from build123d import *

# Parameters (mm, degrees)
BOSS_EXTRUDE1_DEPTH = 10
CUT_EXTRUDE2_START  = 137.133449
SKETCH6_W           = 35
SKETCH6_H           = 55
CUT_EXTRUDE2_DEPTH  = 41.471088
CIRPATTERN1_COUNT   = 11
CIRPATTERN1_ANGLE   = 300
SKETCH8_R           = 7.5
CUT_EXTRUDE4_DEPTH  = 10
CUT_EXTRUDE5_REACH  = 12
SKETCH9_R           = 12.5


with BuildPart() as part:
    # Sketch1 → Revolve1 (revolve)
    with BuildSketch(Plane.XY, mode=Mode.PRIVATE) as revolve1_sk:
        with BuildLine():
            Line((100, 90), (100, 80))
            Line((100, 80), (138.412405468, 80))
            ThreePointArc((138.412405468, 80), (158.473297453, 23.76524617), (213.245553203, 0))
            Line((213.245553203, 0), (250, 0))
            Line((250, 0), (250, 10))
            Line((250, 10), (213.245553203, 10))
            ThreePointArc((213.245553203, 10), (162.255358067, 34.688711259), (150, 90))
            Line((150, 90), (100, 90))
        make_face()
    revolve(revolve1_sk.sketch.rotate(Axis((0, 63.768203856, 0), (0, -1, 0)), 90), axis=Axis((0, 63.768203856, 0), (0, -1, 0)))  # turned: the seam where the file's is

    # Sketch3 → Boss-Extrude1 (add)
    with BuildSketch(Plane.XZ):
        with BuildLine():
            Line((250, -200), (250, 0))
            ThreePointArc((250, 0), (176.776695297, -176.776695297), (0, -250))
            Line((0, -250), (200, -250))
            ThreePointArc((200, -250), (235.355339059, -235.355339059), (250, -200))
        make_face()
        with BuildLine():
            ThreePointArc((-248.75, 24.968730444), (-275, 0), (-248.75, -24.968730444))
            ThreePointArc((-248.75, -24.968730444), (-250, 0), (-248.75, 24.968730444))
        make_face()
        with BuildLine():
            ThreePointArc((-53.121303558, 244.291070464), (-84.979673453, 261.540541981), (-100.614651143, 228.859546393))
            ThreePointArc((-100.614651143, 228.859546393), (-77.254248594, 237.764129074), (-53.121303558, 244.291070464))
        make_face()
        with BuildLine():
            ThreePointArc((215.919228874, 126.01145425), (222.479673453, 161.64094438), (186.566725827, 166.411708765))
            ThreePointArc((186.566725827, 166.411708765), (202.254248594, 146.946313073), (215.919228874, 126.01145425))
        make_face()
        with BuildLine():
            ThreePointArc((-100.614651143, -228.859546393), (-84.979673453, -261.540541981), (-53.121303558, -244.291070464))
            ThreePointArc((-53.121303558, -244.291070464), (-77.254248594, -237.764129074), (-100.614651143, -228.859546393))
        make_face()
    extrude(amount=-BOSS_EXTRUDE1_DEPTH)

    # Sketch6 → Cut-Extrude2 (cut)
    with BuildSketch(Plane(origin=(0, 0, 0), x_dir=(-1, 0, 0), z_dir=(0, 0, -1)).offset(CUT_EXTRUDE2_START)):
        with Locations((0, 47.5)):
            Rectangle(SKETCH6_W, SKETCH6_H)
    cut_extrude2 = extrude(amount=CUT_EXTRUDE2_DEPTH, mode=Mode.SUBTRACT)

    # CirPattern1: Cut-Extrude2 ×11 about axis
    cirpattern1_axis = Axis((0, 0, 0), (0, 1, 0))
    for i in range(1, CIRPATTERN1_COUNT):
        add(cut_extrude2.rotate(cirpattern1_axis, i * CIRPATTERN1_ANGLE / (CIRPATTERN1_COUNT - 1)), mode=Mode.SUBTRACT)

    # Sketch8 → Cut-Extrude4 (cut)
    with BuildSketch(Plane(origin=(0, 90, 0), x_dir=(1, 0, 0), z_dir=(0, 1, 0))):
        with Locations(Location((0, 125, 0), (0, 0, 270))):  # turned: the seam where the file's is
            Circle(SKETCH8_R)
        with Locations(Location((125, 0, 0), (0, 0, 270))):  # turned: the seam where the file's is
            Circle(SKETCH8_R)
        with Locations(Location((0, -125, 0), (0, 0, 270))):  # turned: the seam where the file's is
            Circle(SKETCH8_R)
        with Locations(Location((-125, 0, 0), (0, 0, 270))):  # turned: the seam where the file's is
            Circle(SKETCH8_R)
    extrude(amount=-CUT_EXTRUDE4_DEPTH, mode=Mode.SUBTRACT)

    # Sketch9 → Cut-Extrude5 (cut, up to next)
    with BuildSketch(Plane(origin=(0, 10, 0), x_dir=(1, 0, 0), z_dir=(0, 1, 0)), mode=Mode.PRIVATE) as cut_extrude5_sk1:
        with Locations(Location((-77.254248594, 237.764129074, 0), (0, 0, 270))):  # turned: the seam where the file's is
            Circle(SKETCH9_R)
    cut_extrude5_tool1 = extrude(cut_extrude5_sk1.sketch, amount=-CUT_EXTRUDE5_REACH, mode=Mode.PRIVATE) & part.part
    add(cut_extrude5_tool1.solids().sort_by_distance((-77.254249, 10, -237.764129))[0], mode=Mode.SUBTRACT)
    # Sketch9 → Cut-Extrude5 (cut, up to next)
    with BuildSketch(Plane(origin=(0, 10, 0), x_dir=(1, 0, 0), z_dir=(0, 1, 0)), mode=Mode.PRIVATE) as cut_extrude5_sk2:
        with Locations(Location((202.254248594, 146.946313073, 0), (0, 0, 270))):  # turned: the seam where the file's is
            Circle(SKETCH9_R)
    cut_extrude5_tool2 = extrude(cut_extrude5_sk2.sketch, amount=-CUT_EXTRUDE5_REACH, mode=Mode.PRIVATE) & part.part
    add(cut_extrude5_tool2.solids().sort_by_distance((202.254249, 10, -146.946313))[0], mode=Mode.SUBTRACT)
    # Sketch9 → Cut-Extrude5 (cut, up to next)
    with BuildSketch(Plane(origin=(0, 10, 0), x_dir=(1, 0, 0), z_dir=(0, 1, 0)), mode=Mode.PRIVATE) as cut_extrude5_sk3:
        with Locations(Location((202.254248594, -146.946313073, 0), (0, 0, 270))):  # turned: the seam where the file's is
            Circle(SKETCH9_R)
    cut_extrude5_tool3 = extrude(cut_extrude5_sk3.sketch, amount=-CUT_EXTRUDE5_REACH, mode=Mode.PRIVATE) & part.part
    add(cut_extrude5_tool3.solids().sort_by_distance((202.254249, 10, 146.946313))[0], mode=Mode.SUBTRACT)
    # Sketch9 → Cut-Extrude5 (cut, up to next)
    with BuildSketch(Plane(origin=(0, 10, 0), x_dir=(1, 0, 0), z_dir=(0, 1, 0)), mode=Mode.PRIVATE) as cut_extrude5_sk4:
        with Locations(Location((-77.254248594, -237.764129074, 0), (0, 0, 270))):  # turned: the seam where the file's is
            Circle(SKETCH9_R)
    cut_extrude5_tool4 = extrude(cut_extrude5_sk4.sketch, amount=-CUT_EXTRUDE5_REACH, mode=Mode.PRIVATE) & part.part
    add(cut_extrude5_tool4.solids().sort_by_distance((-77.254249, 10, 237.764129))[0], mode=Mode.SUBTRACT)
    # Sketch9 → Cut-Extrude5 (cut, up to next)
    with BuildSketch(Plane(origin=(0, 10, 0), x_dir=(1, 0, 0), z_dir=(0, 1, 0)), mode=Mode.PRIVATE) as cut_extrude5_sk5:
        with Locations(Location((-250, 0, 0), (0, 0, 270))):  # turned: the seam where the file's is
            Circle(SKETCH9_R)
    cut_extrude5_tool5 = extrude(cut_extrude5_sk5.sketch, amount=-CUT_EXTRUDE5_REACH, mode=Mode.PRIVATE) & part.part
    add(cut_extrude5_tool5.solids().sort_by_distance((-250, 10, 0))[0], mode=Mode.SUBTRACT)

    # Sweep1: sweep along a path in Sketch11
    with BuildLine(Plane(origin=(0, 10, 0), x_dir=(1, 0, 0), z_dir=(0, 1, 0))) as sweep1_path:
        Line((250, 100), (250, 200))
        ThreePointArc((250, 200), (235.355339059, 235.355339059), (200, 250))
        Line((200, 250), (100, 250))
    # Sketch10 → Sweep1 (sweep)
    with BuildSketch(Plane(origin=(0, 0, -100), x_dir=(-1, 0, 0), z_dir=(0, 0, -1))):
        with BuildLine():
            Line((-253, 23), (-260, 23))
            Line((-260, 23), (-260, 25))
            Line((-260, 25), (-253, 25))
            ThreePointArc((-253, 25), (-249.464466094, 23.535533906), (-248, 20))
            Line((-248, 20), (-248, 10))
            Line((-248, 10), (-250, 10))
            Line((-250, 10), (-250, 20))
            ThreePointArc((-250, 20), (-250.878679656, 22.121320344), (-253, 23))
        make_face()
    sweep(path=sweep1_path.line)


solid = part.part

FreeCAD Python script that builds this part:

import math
import FreeCAD as App
import Part
import Sketcher
from FreeCAD import Vector

doc = App.newDocument("Part")
body = doc.addObject("PartDesign::Body", "Body")

# Sketch on XY plane
sketch1 = body.newObject("Sketcher::SketchObject", "Sketch")
sketch1.AttachmentSupport = (doc.getObject("XY_Plane"), [""])
sketch1.MapMode = "FlatFace"
sketch1.addGeometry([
    Part.LineSegment(Vector(100, 90, 0), Vector(100, 80, 0)),  # 0
    Part.LineSegment(Vector(100, 80, 0), Vector(138, 80, 0)),  # 1
    Part.ArcOfCircle(Part.Circle(Vector(213, 75, 0), Vector(0, 0, 1), 75), math.radians(176), math.radians(270)),  # 2
    Part.LineSegment(Vector(213, 0, 0), Vector(250, 0, 0)),  # 3
    Part.LineSegment(Vector(250, 0, 0), Vector(250, 10, 0)),  # 4
    Part.LineSegment(Vector(250, 10, 0), Vector(213, 10, 0)),  # 5
    Part.ArcOfCircle(Part.Circle(Vector(213, 75, 0), Vector(0, 0, 1), 65), math.radians(167), math.radians(270)),  # 6
    Part.LineSegment(Vector(150, 90, 0), Vector(100, 90, 0)),  # 7
], False)
sketch1.addConstraint([
    Sketcher.Constraint("Coincident", 0, 2, 1, 1),
    Sketcher.Constraint("Coincident", 1, 2, 2, 1),
    Sketcher.Constraint("Tangent", 2, 2, 3, 1),
    Sketcher.Constraint("Coincident", 3, 2, 4, 1),
    Sketcher.Constraint("Coincident", 4, 2, 5, 1),
    Sketcher.Constraint("Tangent", 5, 2, 6, 2),
    Sketcher.Constraint("Coincident", 6, 1, 7, 1),
    Sketcher.Constraint("Coincident", 7, 2, 0, 1),
    Sketcher.Constraint("Vertical", 0),
    Sketcher.Constraint("Horizontal", 1),
    Sketcher.Constraint("Horizontal", 3),
    Sketcher.Constraint("Vertical", 4),
    Sketcher.Constraint("Horizontal", 5),
    Sketcher.Constraint("Horizontal", 7),
    Sketcher.Constraint("Coincident", 6, 3, 2, 3),
    Sketcher.Constraint("PointOnObject", 2, 2, -1),
    Sketcher.Constraint("Equal", 0, 4),
    Sketcher.Constraint("Radius", 2, 75.0),
    Sketcher.Constraint("Radius", 6, 65.0),
    Sketcher.Constraint("DistanceX", 7, 2, 7, 1, 50.0),
    Sketcher.Constraint("DistanceX", -1, 1, 0, 2, 100.0),
    Sketcher.Constraint("DistanceY", -1, 1, 0, 2, 80.0),
    Sketcher.Constraint("DistanceX", -1, 1, 3, 2, 250.0),
])
revolution = body.newObject("PartDesign::Revolution", "Revolution")
revolution.Profile = sketch1
revolution.ReferenceAxis = (sketch1, ["V_Axis"])
revolution.Angle = 360

# Sketch on XZ plane
sketch2 = body.newObject("Sketcher::SketchObject", "Sketch001")
sketch2.AttachmentSupport = (doc.getObject("XZ_Plane"), [""])
sketch2.MapMode = "FlatFace"
sketch2.addGeometry([
    Part.LineSegment(Vector(250, -200, 0), Vector(250, 0, 0)),  # 0
    Part.ArcOfCircle(Part.Circle(Vector(0, 0, 0), Vector(0, 0, 1), 250), math.radians(-90), math.radians(0)),  # 1
    Part.LineSegment(Vector(0, -250, 0), Vector(200, -250, 0)),  # 2
    Part.ArcOfCircle(Part.Circle(Vector(200, -200, 0), Vector(0, 0, 1), 50), math.radians(-90), math.radians(0)),  # 3
    Part.ArcOfCircle(Part.Circle(Vector(-250, 0, 0), Vector(0, 0, 1), 25), math.radians(87), math.radians(273)),  # 4
    Part.ArcOfCircle(Part.Circle(Vector(0, 0, 0), Vector(0, 0, 1), 250), math.radians(174.27), math.radians(185.73)),  # 5
    Part.ArcOfCircle(Part.Circle(Vector(-77, 238, 0), Vector(0, 0, 1), 25), math.radians(15), math.radians(201)),  # 6
    Part.ArcOfCircle(Part.Circle(Vector(0, 0, 0), Vector(0, 0, 1), 250), math.radians(102.27), math.radians(113.73)),  # 7
    Part.ArcOfCircle(Part.Circle(Vector(202, 147, 0), Vector(0, 0, 1), 25), math.radians(-57), math.radians(129)),  # 8
    Part.ArcOfCircle(Part.Circle(Vector(0, 0, 0), Vector(0, 0, 1), 250), math.radians(30.27), math.radians(41.73)),  # 9
    Part.ArcOfCircle(Part.Circle(Vector(-77, -238, 0), Vector(0, 0, 1), 25), math.radians(159), math.radians(345)),  # 10
    Part.ArcOfCircle(Part.Circle(Vector(0, 0, 0), Vector(0, 0, 1), 250), math.radians(-113.73), math.radians(-102.27)),  # 11
], False)
sketch2.addConstraint([
    Sketcher.Constraint("Tangent", 0, 2, 1, 2),
    Sketcher.Constraint("Tangent", 1, 1, 2, 1),
    Sketcher.Constraint("Tangent", 2, 2, 3, 1),
    Sketcher.Constraint("Tangent", 3, 2, 0, 1),
    Sketcher.Constraint("Coincident", 4, 1, 5, 1),
    Sketcher.Constraint("Coincident", 5, 2, 4, 2),
    Sketcher.Constraint("Coincident", 6, 1, 7, 1),
    Sketcher.Constraint("Coincident", 7, 2, 6, 2),
    Sketcher.Constraint("Coincident", 8, 1, 9, 1),
    Sketcher.Constraint("Coincident", 9, 2, 8, 2),
    Sketcher.Constraint("Coincident", 10, 1, 11, 1),
    Sketcher.Constraint("Coincident", 11, 2, 10, 2),
    Sketcher.Constraint("Vertical", 0),
    Sketcher.Constraint("Horizontal", 2),
    Sketcher.Constraint("Coincident", 1, 3, -1, 1),
    Sketcher.Constraint("Coincident", 5, 3, -1, 1),
    Sketcher.Constraint("Coincident", 7, 3, -1, 1),
    Sketcher.Constraint("Coincident", 9, 3, -1, 1),
    Sketcher.Constraint("Coincident", 11, 3, -1, 1),
    Sketcher.Constraint("Equal", 1, 5),
    Sketcher.Constraint("Equal", 4, 6),
    Sketcher.Constraint("Equal", 5, 7),
    Sketcher.Constraint("Equal", 6, 8),
    Sketcher.Constraint("Equal", 7, 9),
    Sketcher.Constraint("Equal", 8, 10),
    Sketcher.Constraint("Equal", 9, 11),
    Sketcher.Constraint("Symmetric", 6, 3, 10, 3, -1),
    Sketcher.Constraint("PointOnObject", 4, 3, -1),
    Sketcher.Constraint("Radius", 1, 250.0),
    Sketcher.Constraint("Radius", 3, 50.0),
    Sketcher.Constraint("Radius", 4, 25.0),
    Sketcher.Constraint("DistanceX", 4, 3, -1, 1, 250.0),
    Sketcher.Constraint("DistanceX", 6, 3, -1, 1, 77.254249),
    Sketcher.Constraint("DistanceY", -1, 1, 6, 3, 237.764129),
    Sketcher.Constraint("DistanceX", -1, 1, 8, 3, 202.254249),
    Sketcher.Constraint("DistanceX", -1, 1, 8, 1, 215.919229),
])
pad1 = body.newObject("PartDesign::Pad", "Pad")
pad1.Profile = sketch2
pad1.Length = 10
pad1.Reversed = True

# Sketch on XY plane
sketch3 = body.newObject("Sketcher::SketchObject", "Sketch002")
sketch3.AttachmentSupport = (doc.getObject("XY_Plane"), [""])
sketch3.MapMode = "FlatFace"
sketch3.AttachmentOffset = App.Placement(Vector(0, 0, -137.133449), App.Rotation())
sketch3.addGeometry([
    Part.LineSegment(Vector(18, 75, 0), Vector(18, 20, 0)),
    Part.LineSegment(Vector(18, 20, 0), Vector(-18, 20, 0)),
    Part.LineSegment(Vector(-18, 20, 0), Vector(-18, 75, 0)),
    Part.LineSegment(Vector(-18, 75, 0), Vector(18, 75, 0)),
], False)
sketch3.addConstraint([
    Sketcher.Constraint("Coincident", 0, 2, 1, 1),
    Sketcher.Constraint("Coincident", 1, 2, 2, 1),
    Sketcher.Constraint("Coincident", 2, 2, 3, 1),
    Sketcher.Constraint("Coincident", 3, 2, 0, 1),
    Sketcher.Constraint("Vertical", 0),
    Sketcher.Constraint("Horizontal", 1),
    Sketcher.Constraint("Vertical", 2),
    Sketcher.Constraint("Horizontal", 3),
    Sketcher.Constraint("DistanceX", 1, 2, 1, 1, 35.0),
    Sketcher.Constraint("DistanceY", 0, 2, 0, 1, 55.0),
    Sketcher.Constraint("DistanceY", -1, 1, 0, 2, 20.0),
    Sketcher.Constraint("DistanceX", -1, 1, 0, 2, 17.5),
])
pocket1 = body.newObject("PartDesign::Pocket", "Pocket")
pocket1.Profile = sketch3
pocket1.Length = 41.471088
doc.recompute()

polarpattern = body.newObject("PartDesign::PolarPattern", "PolarPattern")
polarpattern.Originals = [pocket1]
polarpattern.Axis = (doc.getObject("Y_Axis"), [""])
polarpattern.Angle = 300
polarpattern.Occurrences = 11
body.Tip = polarpattern

# Sketch on XZ plane
sketch4 = body.newObject("Sketcher::SketchObject", "Sketch003")
sketch4.AttachmentSupport = (doc.getObject("XZ_Plane"), [""])
sketch4.MapMode = "FlatFace"
sketch4.AttachmentOffset = App.Placement(Vector(0, 0, -90), App.Rotation())
sketch4.addGeometry([
    Part.Circle(Vector(0, -125, 0), Vector(0, 0, 1), 8),
    Part.Circle(Vector(125, 0, 0), Vector(0, 0, 1), 8),
    Part.Circle(Vector(0, 125, 0), Vector(0, 0, 1), 8),
    Part.Circle(Vector(-125, 0, 0), Vector(0, 0, 1), 8),
], False)
sketch4.addConstraint([
    Sketcher.Constraint("Equal", 0, 1),
    Sketcher.Constraint("Equal", 1, 2),
    Sketcher.Constraint("Equal", 2, 3),
    Sketcher.Constraint("Symmetric", 0, 3, 2, 3, -1, 1),
    Sketcher.Constraint("Symmetric", 1, 3, 3, 3, -1, 1),
    Sketcher.Constraint("PointOnObject", 0, 3, -2),
    Sketcher.Constraint("PointOnObject", 1, 3, -1),
    Sketcher.Constraint("Diameter", 0, 15.0),
    Sketcher.Constraint("DistanceY", 0, 3, -1, 1, 125.0),
    Sketcher.Constraint("DistanceX", -1, 1, 1, 3, 125.0),
])
pocket2 = body.newObject("PartDesign::Pocket", "Pocket001")
pocket2.Profile = sketch4
pocket2.Length = 10
pocket2.Reversed = True

# Sketch on XZ plane
sketch5 = body.newObject("Sketcher::SketchObject", "Sketch004")
sketch5.AttachmentSupport = (doc.getObject("XZ_Plane"), [""])
sketch5.MapMode = "FlatFace"
sketch5.AttachmentOffset = App.Placement(Vector(0, 0, -10), App.Rotation())
sketch5.addGeometry(Part.Circle(Vector(-77, -238, 0), Vector(0, 0, 1), 12), False)
sketch5.addConstraint([
    Sketcher.Constraint("Diameter", 0, 25.0),
    Sketcher.Constraint("DistanceX", 0, 3, -1, 1, 77.254249),
    Sketcher.Constraint("DistanceY", 0, 3, -1, 1, 237.764129),
])
pocket3 = body.newObject("PartDesign::Pocket", "Pocket002")
pocket3.Profile = sketch5
pocket3.Type = "UpToFirst"
pocket3.Reversed = True

# Sketch on XZ plane
sketch6 = body.newObject("Sketcher::SketchObject", "Sketch005")
sketch6.AttachmentSupport = (doc.getObject("XZ_Plane"), [""])
sketch6.MapMode = "FlatFace"
sketch6.AttachmentOffset = App.Placement(Vector(0, 0, -10), App.Rotation())
sketch6.addGeometry(Part.Circle(Vector(202, -147, 0), Vector(0, 0, 1), 12), False)
sketch6.addConstraint([
    Sketcher.Constraint("Diameter", 0, 25.0),
    Sketcher.Constraint("DistanceX", -1, 1, 0, 3, 202.254249),
    Sketcher.Constraint("DistanceY", 0, 3, -1, 1, 146.946313),
])
pocket4 = body.newObject("PartDesign::Pocket", "Pocket003")
pocket4.Profile = sketch6
pocket4.Type = "UpToFirst"
pocket4.Reversed = True

# Sketch on XZ plane
sketch7 = body.newObject("Sketcher::SketchObject", "Sketch006")
sketch7.AttachmentSupport = (doc.getObject("XZ_Plane"), [""])
sketch7.MapMode = "FlatFace"
sketch7.AttachmentOffset = App.Placement(Vector(0, 0, -10), App.Rotation())
sketch7.addGeometry(Part.Circle(Vector(202, 147, 0), Vector(0, 0, 1), 12), False)
sketch7.addConstraint([
    Sketcher.Constraint("Diameter", 0, 25.0),
    Sketcher.Constraint("DistanceX", -1, 1, 0, 3, 202.254249),
    Sketcher.Constraint("DistanceY", -1, 1, 0, 3, 146.946313),
])
pocket5 = body.newObject("PartDesign::Pocket", "Pocket004")
pocket5.Profile = sketch7
pocket5.Type = "UpToFirst"
pocket5.Reversed = True

# Sketch on XZ plane
sketch8 = body.newObject("Sketcher::SketchObject", "Sketch007")
sketch8.AttachmentSupport = (doc.getObject("XZ_Plane"), [""])
sketch8.MapMode = "FlatFace"
sketch8.AttachmentOffset = App.Placement(Vector(0, 0, -10), App.Rotation())
sketch8.addGeometry(Part.Circle(Vector(-77, 238, 0), Vector(0, 0, 1), 12), False)
sketch8.addConstraint([
    Sketcher.Constraint("Diameter", 0, 25.0),
    Sketcher.Constraint("DistanceX", 0, 3, -1, 1, 77.254249),
    Sketcher.Constraint("DistanceY", -1, 1, 0, 3, 237.764129),
])
pocket6 = body.newObject("PartDesign::Pocket", "Pocket005")
pocket6.Profile = sketch8
pocket6.Type = "UpToFirst"
pocket6.Reversed = True

# Sketch on XZ plane
sketch9 = body.newObject("Sketcher::SketchObject", "Sketch008")
sketch9.AttachmentSupport = (doc.getObject("XZ_Plane"), [""])
sketch9.MapMode = "FlatFace"
sketch9.AttachmentOffset = App.Placement(Vector(0, 0, -10), App.Rotation())
sketch9.addGeometry(Part.Circle(Vector(-250, 0, 0), Vector(0, 0, 1), 12), False)
sketch9.addConstraint([
    Sketcher.Constraint("PointOnObject", 0, 3, -1),
    Sketcher.Constraint("Diameter", 0, 25.0),
    Sketcher.Constraint("DistanceX", 0, 3, -1, 1, 250.0),
])
pocket7 = body.newObject("PartDesign::Pocket", "Pocket006")
pocket7.Profile = sketch9
pocket7.Type = "UpToFirst"
pocket7.Reversed = True

# Sketch on XY plane
sketch10 = body.newObject("Sketcher::SketchObject", "Sketch009")
sketch10.AttachmentSupport = (doc.getObject("XY_Plane"), [""])
sketch10.MapMode = "FlatFace"
sketch10.AttachmentOffset = App.Placement(Vector(0, 0, -100), App.Rotation())
sketch10.addGeometry([
    Part.LineSegment(Vector(260, 23, 0), Vector(253, 23, 0)),  # 0
    Part.ArcOfCircle(Part.Circle(Vector(253, 20, 0), Vector(0, 0, 1), 3), math.radians(90), math.radians(180)),  # 1
    Part.LineSegment(Vector(250, 20, 0), Vector(250, 10, 0)),  # 2
    Part.LineSegment(Vector(250, 10, 0), Vector(248, 10, 0)),  # 3
    Part.LineSegment(Vector(248, 10, 0), Vector(248, 20, 0)),  # 4
    Part.ArcOfCircle(Part.Circle(Vector(253, 20, 0), Vector(0, 0, 1), 5), math.radians(90), math.radians(180)),  # 5
    Part.LineSegment(Vector(253, 25, 0), Vector(260, 25, 0)),  # 6
    Part.LineSegment(Vector(260, 25, 0), Vector(260, 23, 0)),  # 7
], False)
sketch10.addConstraint([
    Sketcher.Constraint("Tangent", 0, 2, 1, 1),
    Sketcher.Constraint("Tangent", 1, 2, 2, 1),
    Sketcher.Constraint("Coincident", 2, 2, 3, 1),
    Sketcher.Constraint("Coincident", 3, 2, 4, 1),
    Sketcher.Constraint("Tangent", 4, 2, 5, 2),
    Sketcher.Constraint("Tangent", 5, 1, 6, 1),
    Sketcher.Constraint("Coincident", 6, 2, 7, 1),
    Sketcher.Constraint("Coincident", 7, 2, 0, 1),
    Sketcher.Constraint("Horizontal", 0),
    Sketcher.Constraint("Vertical", 2),
    Sketcher.Constraint("Horizontal", 3),
    Sketcher.Constraint("Vertical", 4),
    Sketcher.Constraint("Horizontal", 6),
    Sketcher.Constraint("Vertical", 7),
    Sketcher.Constraint("Coincident", 5, 3, 1, 3),
    Sketcher.Constraint("Radius", 1, 3.0),
    Sketcher.Constraint("Radius", 5, 5.0),
    Sketcher.Constraint("DistanceX", 0, 2, 0, 1, 7.0),
    Sketcher.Constraint("DistanceY", 2, 2, 2, 1, 10.0),
    Sketcher.Constraint("DistanceX", -1, 1, 1, 3, 253.0),
    Sketcher.Constraint("DistanceY", -1, 1, 1, 3, 20.0),
])

# Sketch on XZ plane
sketch11 = body.newObject("Sketcher::SketchObject", "Sketch010")
sketch11.AttachmentSupport = (doc.getObject("XZ_Plane"), [""])
sketch11.MapMode = "FlatFace"
sketch11.AttachmentOffset = App.Placement(Vector(0, 0, -10), App.Rotation())
sketch11.addGeometry([
    Part.LineSegment(Vector(250, -100, 0), Vector(250, -200, 0)),
    Part.ArcOfCircle(Part.Circle(Vector(200, -200, 0), Vector(0, 0, 1), 50), math.radians(-90), math.radians(0)),
    Part.LineSegment(Vector(200, -250, 0), Vector(100, -250, 0)),
], False)
sketch11.addConstraint([
    Sketcher.Constraint("Tangent", 0, 2, 1, 2),
    Sketcher.Constraint("Tangent", 1, 1, 2, 1),
    Sketcher.Constraint("Vertical", 0),
    Sketcher.Constraint("Horizontal", 2),
    Sketcher.Constraint("Equal", 2, 0),
    Sketcher.Constraint("Radius", 1, 50.0),
    Sketcher.Constraint("DistanceX", 2, 2, 2, 1, 100.0),
    Sketcher.Constraint("DistanceX", -1, 1, 1, 3, 200.0),
    Sketcher.Constraint("DistanceY", 1, 3, -1, 1, 200.0),
])
doc.recompute()

additivepipe = body.newObject("PartDesign::AdditivePipe", "AdditivePipe")
additivepipe.Profile = sketch10
additivepipe.Spine = (sketch11, ["Edge1", "Edge2", "Edge3"])

doc.recompute()
